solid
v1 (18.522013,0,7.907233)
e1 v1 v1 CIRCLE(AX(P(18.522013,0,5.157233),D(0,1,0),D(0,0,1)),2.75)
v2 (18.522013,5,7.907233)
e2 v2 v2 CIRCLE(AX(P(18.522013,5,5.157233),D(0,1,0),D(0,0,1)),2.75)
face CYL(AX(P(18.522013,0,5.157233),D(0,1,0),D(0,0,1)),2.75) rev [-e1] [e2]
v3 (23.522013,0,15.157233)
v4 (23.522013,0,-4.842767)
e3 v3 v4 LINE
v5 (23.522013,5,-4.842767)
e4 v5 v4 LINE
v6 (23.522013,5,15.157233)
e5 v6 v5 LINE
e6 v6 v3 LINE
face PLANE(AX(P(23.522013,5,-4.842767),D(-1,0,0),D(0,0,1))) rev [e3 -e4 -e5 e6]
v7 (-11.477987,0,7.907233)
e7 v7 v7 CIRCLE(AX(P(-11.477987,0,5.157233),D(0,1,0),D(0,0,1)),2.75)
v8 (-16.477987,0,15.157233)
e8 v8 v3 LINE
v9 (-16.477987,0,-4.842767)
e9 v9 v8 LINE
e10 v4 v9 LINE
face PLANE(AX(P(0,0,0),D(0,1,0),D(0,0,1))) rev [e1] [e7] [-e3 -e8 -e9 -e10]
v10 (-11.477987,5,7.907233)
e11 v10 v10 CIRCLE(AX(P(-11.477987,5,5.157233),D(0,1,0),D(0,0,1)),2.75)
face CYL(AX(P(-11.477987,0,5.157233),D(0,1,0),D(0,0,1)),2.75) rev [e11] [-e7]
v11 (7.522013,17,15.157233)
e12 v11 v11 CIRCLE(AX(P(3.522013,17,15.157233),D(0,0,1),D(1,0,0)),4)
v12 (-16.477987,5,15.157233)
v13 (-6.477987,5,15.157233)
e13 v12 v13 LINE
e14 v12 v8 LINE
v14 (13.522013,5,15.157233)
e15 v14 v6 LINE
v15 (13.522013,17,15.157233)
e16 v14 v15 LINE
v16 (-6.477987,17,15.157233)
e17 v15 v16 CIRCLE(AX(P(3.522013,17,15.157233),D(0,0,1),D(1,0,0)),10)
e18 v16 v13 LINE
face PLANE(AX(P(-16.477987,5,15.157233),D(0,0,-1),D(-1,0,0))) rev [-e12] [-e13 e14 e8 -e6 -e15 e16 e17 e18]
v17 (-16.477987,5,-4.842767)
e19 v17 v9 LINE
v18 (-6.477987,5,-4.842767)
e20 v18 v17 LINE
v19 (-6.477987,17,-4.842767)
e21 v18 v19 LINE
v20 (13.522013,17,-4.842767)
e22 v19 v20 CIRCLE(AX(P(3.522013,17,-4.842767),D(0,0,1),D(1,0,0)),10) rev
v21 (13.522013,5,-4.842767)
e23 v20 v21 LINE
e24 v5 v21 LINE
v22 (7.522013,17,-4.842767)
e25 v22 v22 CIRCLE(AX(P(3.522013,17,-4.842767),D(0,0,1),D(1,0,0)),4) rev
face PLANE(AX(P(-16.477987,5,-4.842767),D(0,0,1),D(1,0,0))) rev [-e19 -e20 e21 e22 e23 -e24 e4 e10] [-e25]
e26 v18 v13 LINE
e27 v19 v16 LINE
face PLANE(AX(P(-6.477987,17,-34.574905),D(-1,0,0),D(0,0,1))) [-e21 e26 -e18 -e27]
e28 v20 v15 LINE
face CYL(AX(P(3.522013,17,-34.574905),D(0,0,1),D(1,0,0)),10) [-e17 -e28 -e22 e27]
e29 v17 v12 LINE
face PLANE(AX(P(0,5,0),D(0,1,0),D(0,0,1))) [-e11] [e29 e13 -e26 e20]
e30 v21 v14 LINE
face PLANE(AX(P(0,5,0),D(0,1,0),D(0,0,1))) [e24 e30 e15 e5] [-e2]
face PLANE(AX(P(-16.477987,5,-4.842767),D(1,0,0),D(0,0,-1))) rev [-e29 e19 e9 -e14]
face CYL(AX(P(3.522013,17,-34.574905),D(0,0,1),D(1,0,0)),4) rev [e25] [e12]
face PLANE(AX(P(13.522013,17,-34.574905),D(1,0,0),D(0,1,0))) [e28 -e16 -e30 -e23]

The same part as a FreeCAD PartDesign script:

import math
import FreeCAD as App
import Part
import Sketcher
from FreeCAD import Vector
Q = App.Units.Quantity

doc = App.newDocument("Part")
params = doc.addObject("Spreadsheet::Sheet", "Params")
for row, (alias, value) in enumerate([
    ("sketch1_width", "40 mm"),
    ("sketch1_height", "20 mm"),
    ("pad1_length", "5 mm"),
    ("sketch2_diameter", "8 mm"),
    ("sketch2_radius", "10 mm"),
    ("sketch2_height", "12 mm"),
    ("pad2_length", "20 mm"),
    ("sketch3_diameter", "5.5 mm"),
], start=1):
    params.set(f"A{row}", alias)
    params.set(f"B{row}", "=" + value)
    params.setAlias(f"B{row}", alias)

body = doc.addObject("PartDesign::Body", "Body")

# Sketch on XZ plane
sketch1 = doc.addObject("Sketcher::SketchObject", "Sketch")
body.addObject(sketch1)
sketch1.AttachmentSupport = (doc.XZ_Plane, [""])
sketch1.MapMode = "FlatFace"
sketch1.addGeometry(Part.LineSegment(Vector(-16.477987, -4.842767, 0), Vector(-16.477987, 15.157233, 0)), False)
sketch1.addGeometry(Part.LineSegment(Vector(-16.477987, 15.157233, 0), Vector(23.522013, 15.157233, 0)), False)
sketch1.addGeometry(Part.LineSegment(Vector(23.522013, 15.157233, 0), Vector(23.522013, -4.842767, 0)), False)
sketch1.addGeometry(Part.LineSegment(Vector(23.522013, -4.842767, 0), Vector(-16.477987, -4.842767, 0)), False)
sketch1.addConstraint(Sketcher.Constraint("Coincident", 0, 2, 1, 1))
sketch1.addConstraint(Sketcher.Constraint("Coincident", 1, 2, 2, 1))
sketch1.addConstraint(Sketcher.Constraint("Coincident", 2, 2, 3, 1))
sketch1.addConstraint(Sketcher.Constraint("Coincident", 3, 2, 0, 1))
sketch1.addConstraint(Sketcher.Constraint("Vertical", 0))
sketch1.addConstraint(Sketcher.Constraint("Horizontal", 1))
sketch1.addConstraint(Sketcher.Constraint("Vertical", 2))
sketch1.addConstraint(Sketcher.Constraint("Horizontal", 3))
sketch1.addConstraint(Sketcher.Constraint("DistanceX", 1, 1, 1, 2, Q("40 mm")))
sketch1.addConstraint(Sketcher.Constraint("DistanceY", 0, 1, 0, 2, Q("20 mm")))
sketch1.addConstraint(Sketcher.Constraint("DistanceX", 0, 2, -1, 1, Q("16.477987 mm")))
sketch1.addConstraint(Sketcher.Constraint("DistanceY", -1, 1, 0, 2, Q("15.157233 mm")))
sketch1.setExpression("Constraints[8]", "Params.sketch1_width")
sketch1.setExpression("Constraints[9]", "Params.sketch1_height")
pad1 = doc.addObject("PartDesign::Pad", "Pad")
body.addObject(pad1)
pad1.Profile = sketch1
pad1.setExpression("Length", "Params.pad1_length")
pad1.Reversed = True

# Sketch on XY plane
sketch2 = doc.addObject("Sketcher::SketchObject", "Sketch001")
body.addObject(sketch2)
sketch2.AttachmentSupport = (doc.XY_Plane, [""])
sketch2.MapMode = "FlatFace"
sketch2.AttachmentOffset = App.Placement(Vector(0, 0, 15.157233), App.Rotation())
sketch2.addGeometry(Part.LineSegment(Vector(-6.477987, 17, 0), Vector(-6.477987, 5, 0)), False)
sketch2.addGeometry(Part.LineSegment(Vector(-6.477987, 5, 0), Vector(13.522013, 5, 0)), False)
sketch2.addGeometry(Part.LineSegment(Vector(13.522013, 5, 0), Vector(13.522013, 17, 0)), False)
sketch2.addGeometry(Part.ArcOfCircle(Part.Circle(Vector(3.522013, 17, 0), Vector(0, 0, 1), 10), math.radians(0), math.radians(180)), False)
sketch2.addGeometry(Part.Circle(Vector(3.522013, 17, 0), Vector(0, 0, 1), 4), False)
sketch2.addConstraint(Sketcher.Constraint("Coincident", 0, 2, 1, 1))
sketch2.addConstraint(Sketcher.Constraint("Coincident", 1, 2, 2, 1))
sketch2.addConstraint(Sketcher.Constraint("Tangent", 2, 2, 3, 1))
sketch2.addConstraint(Sketcher.Constraint("Tangent", 3, 2, 0, 1))
sketch2.addConstraint(Sketcher.Constraint("Vertical", 0))
sketch2.addConstraint(Sketcher.Constraint("Horizontal", 1))
sketch2.addConstraint(Sketcher.Constraint("Vertical", 2))
sketch2.addConstraint(Sketcher.Constraint("Coincident", 4, 3, 3, 3))
sketch2.addConstraint(Sketcher.Constraint("Diameter", 4, Q("8 mm")))
sketch2.addConstraint(Sketcher.Constraint("Radius", 3, Q("10 mm")))
sketch2.addConstraint(Sketcher.Constraint("DistanceY", 0, 2, 0, 1, Q("12 mm")))
sketch2.addConstraint(Sketcher.Constraint("DistanceY", -1, 1, 3, 3, Q("17 mm")))
sketch2.addConstraint(Sketcher.Constraint("DistanceX", -1, 1, 3, 3, Q("3.522013 mm")))
sketch2.setExpression("Constraints[8]", "Params.sketch2_diameter")
sketch2.setExpression("Constraints[9]", "Params.sketch2_radius")
sketch2.setExpression("Constraints[10]", "Params.sketch2_height")
pad2 = doc.addObject("PartDesign::Pad", "Pad001")
body.addObject(pad2)
pad2.Profile = sketch2
pad2.setExpression("Length", "Params.pad2_length")
pad2.Reversed = True

# Sketch on XZ plane
sketch3 = doc.addObject("Sketcher::SketchObject", "Sketch002")
body.addObject(sketch3)
sketch3.AttachmentSupport = (doc.XZ_Plane, [""])
sketch3.MapMode = "FlatFace"
sketch3.AttachmentOffset = App.Placement(Vector(0, 0, -5), App.Rotation())
sketch3.addGeometry(Part.Circle(Vector(-11.477987, 5.157233, 0), Vector(0, 0, 1), 2.75), False)
sketch3.addGeometry(Part.Circle(Vector(18.522013, 5.157233, 0), Vector(0, 0, 1), 2.75), False)
sketch3.addConstraint(Sketcher.Constraint("Equal", 0, 1))
sketch3.addConstraint(Sketcher.Constraint("Horizontal", 0, 3, 1, 3))
sketch3.addConstraint(Sketcher.Constraint("Diameter", 0, Q("5.5 mm")))
sketch3.addConstraint(Sketcher.Constraint("DistanceX", 0, 3, 1, 3, Q("30 mm")))
sketch3.addConstraint(Sketcher.Constraint("DistanceX", 0, 3, -1, 1, Q("11.477987 mm")))
sketch3.addConstraint(Sketcher.Constraint("DistanceY", -1, 1, 0, 3, Q("5.157233 mm")))
sketch3.setExpression("Constraints[2]", "Params.sketch3_diameter")
pocket1 = doc.addObject("PartDesign::Pocket", "Pocket")
body.addObject(pocket1)
pocket1.Profile = sketch3
pocket1.Type = "ThroughAll"
pocket1.Reversed = True

doc.recompute()
